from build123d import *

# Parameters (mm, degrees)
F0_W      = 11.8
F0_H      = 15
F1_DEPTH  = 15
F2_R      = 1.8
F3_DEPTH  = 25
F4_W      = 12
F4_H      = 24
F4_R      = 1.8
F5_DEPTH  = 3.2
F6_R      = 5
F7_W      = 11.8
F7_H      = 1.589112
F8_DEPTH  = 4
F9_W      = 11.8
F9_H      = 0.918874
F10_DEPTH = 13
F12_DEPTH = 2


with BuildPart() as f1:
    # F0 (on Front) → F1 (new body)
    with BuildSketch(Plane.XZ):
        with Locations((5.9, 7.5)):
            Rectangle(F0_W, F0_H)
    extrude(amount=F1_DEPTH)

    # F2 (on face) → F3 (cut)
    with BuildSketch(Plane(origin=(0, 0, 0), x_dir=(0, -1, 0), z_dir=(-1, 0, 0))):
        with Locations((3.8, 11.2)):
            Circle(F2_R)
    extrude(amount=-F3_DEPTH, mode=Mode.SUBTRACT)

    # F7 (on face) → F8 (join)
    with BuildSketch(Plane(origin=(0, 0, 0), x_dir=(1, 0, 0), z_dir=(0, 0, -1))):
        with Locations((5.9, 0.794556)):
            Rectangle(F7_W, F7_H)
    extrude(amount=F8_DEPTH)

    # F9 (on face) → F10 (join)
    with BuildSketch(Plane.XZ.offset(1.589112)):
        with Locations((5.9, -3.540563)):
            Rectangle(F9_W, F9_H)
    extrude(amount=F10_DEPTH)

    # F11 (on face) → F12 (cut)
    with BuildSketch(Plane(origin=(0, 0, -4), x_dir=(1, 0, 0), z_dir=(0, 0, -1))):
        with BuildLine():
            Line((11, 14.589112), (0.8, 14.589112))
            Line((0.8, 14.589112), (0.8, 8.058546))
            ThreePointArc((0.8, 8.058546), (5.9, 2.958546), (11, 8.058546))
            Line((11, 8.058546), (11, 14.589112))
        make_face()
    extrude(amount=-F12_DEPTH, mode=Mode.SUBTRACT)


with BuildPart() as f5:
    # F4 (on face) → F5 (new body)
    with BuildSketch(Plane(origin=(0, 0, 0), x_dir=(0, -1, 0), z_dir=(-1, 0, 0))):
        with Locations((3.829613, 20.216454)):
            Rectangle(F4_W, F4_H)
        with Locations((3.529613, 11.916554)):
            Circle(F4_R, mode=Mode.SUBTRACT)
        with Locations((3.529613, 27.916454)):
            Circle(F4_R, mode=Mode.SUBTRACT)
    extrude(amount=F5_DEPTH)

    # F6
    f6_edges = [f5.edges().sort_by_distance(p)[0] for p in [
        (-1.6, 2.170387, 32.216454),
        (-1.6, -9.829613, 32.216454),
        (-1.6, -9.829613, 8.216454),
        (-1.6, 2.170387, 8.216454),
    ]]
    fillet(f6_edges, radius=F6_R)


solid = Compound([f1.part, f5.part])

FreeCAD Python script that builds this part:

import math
import FreeCAD as App
import Part
import Sketcher
Q = App.Units.Quantity


def edges_at(feature, points):
    """Names of the edges that pass closest to the given points."""
    edges = feature.Shape.Edges
    near = lambda p: min(range(len(edges)), key=lambda i: edges[i].distToShape(Part.Vertex(*p))[0])
    return sorted({f"Edge{near(p) + 1}" for p in points})


def add_polygon(sketch, points):
    """Adds a closed chain of lines whose ends are joined by coincident constraints."""
    first, n = sketch.GeometryCount, len(points)
    for a, b in zip(points, points[1:] + points[:1]):
        sketch.addGeometry(Part.LineSegment(App.Vector(*a, 0), App.Vector(*b, 0)), False)
    for i in range(n):
        sketch.addConstraint(Sketcher.Constraint("Coincident", first + i, 2, first + (i + 1) % n, 1))

doc = App.newDocument("Part")
params = doc.addObject("Spreadsheet::Sheet", "Params")
for row, (alias, value) in enumerate([
    ("sketch1_height", "15 mm"),
    ("sketch1_width", "11.8 mm"),
    ("pad1_length", "15 mm"),
    ("sketch2_diameter", "3.6 mm"),
    ("pocket1_length", "25 mm"),
    ("sketch3_width", "11.8 mm"),
    ("pad2_length", "4 mm"),
    ("sketch4_width", "11.8 mm"),
    ("pad3_length", "13 mm"),
    ("sketch5_radius", "5.1 mm"),
    ("pocket2_length", "2 mm"),
    ("sketch6_diameter", "3.6 mm"),
    ("sketch6_width", "12 mm"),
    ("sketch6_height", "24 mm"),
    ("pad4_length", "3.2 mm"),
    ("fillet_radius", "5 mm"),
], start=1):
    params.set(f"A{row}", alias)
    params.set(f"B{row}", "=" + value)
    params.setAlias(f"B{row}", alias)

body = doc.addObject("PartDesign::Body", "Body")

# Sketch on XZ plane
sketch1 = body.newObject("Sketcher::SketchObject", "Sketch")
sketch1.AttachmentSupport = (doc.getObject("XZ_Plane"), [""])
sketch1.MapMode = "FlatFace"
add_polygon(sketch1, [(0, 15), (0, 0), (12, 0), (12, 15)])  # lines 0-3
sketch1.addConstraint(Sketcher.Constraint("Vertical", 0))
sketch1.addConstraint(Sketcher.Constraint("Horizontal", 1))
sketch1.addConstraint(Sketcher.Constraint("Vertical", 2))
sketch1.addConstraint(Sketcher.Constraint("Horizontal", 3))
sketch1.addConstraint(Sketcher.Constraint("Coincident", 0, 2, -1, 1))
sketch1.addConstraint(Sketcher.Constraint("DistanceY", 0, 2, 0, 1, Q("15 mm")))
sketch1.addConstraint(Sketcher.Constraint("DistanceX", 1, 1, 1, 2, Q("11.8 mm")))
sketch1.setExpression("Constraints[9]", "Params.sketch1_height")
sketch1.setExpression("Constraints[10]", "Params.sketch1_width")
pad1 = body.newObject("PartDesign::Pad", "Pad")
pad1.Profile = sketch1
pad1.setExpression("Length", "Params.pad1_length")

# Sketch on YZ plane
sketch2 = body.newObject("Sketcher::SketchObject", "Sketch001")
sketch2.AttachmentSupport = (doc.getObject("YZ_Plane"), [""])
sketch2.MapMode = "FlatFace"
sketch2.addGeometry(Part.Circle(App.Vector(-3.8, 11.2, 0), App.Vector(0, 0, 1), 1.8), False)
sketch2.addConstraint(Sketcher.Constraint("Diameter", 0, Q("3.6 mm")))
sketch2.addConstraint(Sketcher.Constraint("DistanceX", 0, 3, -1, 1, Q("3.8 mm")))
sketch2.addConstraint(Sketcher.Constraint("DistanceY", -1, 1, 0, 3, Q("11.2 mm")))
sketch2.setExpression("Constraints[0]", "Params.sketch2_diameter")
pocket1 = body.newObject("PartDesign::Pocket", "Pocket")
pocket1.Profile = sketch2
pocket1.setExpression("Length", "Params.pocket1_length")
pocket1.Reversed = True

# Sketch on XY plane
sketch3 = body.newObject("Sketcher::SketchObject", "Sketch002")
sketch3.AttachmentSupport = (doc.getObject("XY_Plane"), [""])
sketch3.MapMode = "FlatFace"
add_polygon(sketch3, [(0, -1.6), (0, 0), (11.8, 0), (11.8, -1.6)])  # lines 0-3
sketch3.addConstraint(Sketcher.Constraint("Vertical", 0))
sketch3.addConstraint(Sketcher.Constraint("Horizontal", 1))
sketch3.addConstraint(Sketcher.Constraint("Vertical", 2))
sketch3.addConstraint(Sketcher.Constraint("Horizontal", 3))
sketch3.addConstraint(Sketcher.Constraint("Coincident", 0, 2, -1, 1))
sketch3.addConstraint(Sketcher.Constraint("DistanceX", 1, 1, 1, 2, Q("11.8 mm")))
sketch3.addConstraint(Sketcher.Constraint("DistanceY", 0, 1, 0, 2, Q("1.589112 mm")))
sketch3.setExpression("Constraints[9]", "Params.sketch3_width")
pad2 = body.newObject("PartDesign::Pad", "Pad001")
pad2.Profile = sketch3
pad2.setExpression("Length", "Params.pad2_length")
pad2.Reversed = True

# Sketch on XZ plane
sketch4 = body.newObject("Sketcher::SketchObject", "Sketch003")
sketch4.AttachmentSupport = (doc.getObject("XZ_Plane"), [""])
sketch4.MapMode = "FlatFace"
sketch4.AttachmentOffset = App.Placement(App.Vector(0, 0, 1.589112), App.Rotation())
add_polygon(sketch4, [(0, -3.1), (0, -4), (11.8, -4), (11.8, -3.1)])  # lines 0-3
sketch4.addConstraint(Sketcher.Constraint("Vertical", 0))
sketch4.addConstraint(Sketcher.Constraint("Horizontal", 1))
sketch4.addConstraint(Sketcher.Constraint("Vertical", 2))
sketch4.addConstraint(Sketcher.Constraint("Horizontal", 3))
sketch4.addConstraint(Sketcher.Constraint("PointOnObject", 0, 2, -2))
sketch4.addConstraint(Sketcher.Constraint("DistanceX", 1, 1, 1, 2, Q("11.8 mm")))
sketch4.addConstraint(Sketcher.Constraint("DistanceY", 0, 2, -1, 1, Q("4 mm")))
sketch4.addConstraint(Sketcher.Constraint("DistanceY", 0, 2, 0, 1, Q("0.918874 mm")))
sketch4.setExpression("Constraints[9]", "Params.sketch4_width")
pad3 = body.newObject("PartDesign::Pad", "Pad002")
pad3.Profile = sketch4
pad3.setExpression("Length", "Params.pad3_length")

# Sketch on XY plane
sketch5 = body.newObject("Sketcher::SketchObject", "Sketch004")
sketch5.AttachmentSupport = (doc.getObject("XY_Plane"), [""])
sketch5.MapMode = "FlatFace"
sketch5.AttachmentOffset = App.Placement(App.Vector(0, 0, -4), App.Rotation())
sketch5.addGeometry(Part.LineSegment(App.Vector(11, -15, 0), App.Vector(1, -15, 0)), False)
sketch5.addGeometry(Part.LineSegment(App.Vector(1, -15, 0), App.Vector(1, -8, 0)), False)
sketch5.addGeometry(Part.ArcOfCircle(Part.Circle(App.Vector(6, -8, 0), App.Vector(0, 0, 1), 5), math.radians(0), math.radians(180)), False)
sketch5.addGeometry(Part.LineSegment(App.Vector(11, -8, 0), App.Vector(11, -15, 0)), False)
sketch5.addConstraint(Sketcher.Constraint("Coincident", 0, 2, 1, 1))
sketch5.addConstraint(Sketcher.Constraint("Tangent", 1, 2, 2, 2))
sketch5.addConstraint(Sketcher.Constraint("Tangent", 2, 1, 3, 1))
sketch5.addConstraint(Sketcher.Constraint("Coincident", 3, 2, 0, 1))
sketch5.addConstraint(Sketcher.Constraint("Horizontal", 0))
sketch5.addConstraint(Sketcher.Constraint("Vertical", 1))
sketch5.addConstraint(Sketcher.Constraint("Vertical", 3))
sketch5.addConstraint(Sketcher.Constraint("Radius", 2, Q("5.1 mm")))
sketch5.addConstraint(Sketcher.Constraint("DistanceX", -1, 1, 2, 1, Q("11 mm")))
sketch5.addConstraint(Sketcher.Constraint("DistanceY", 1, 1, 1, 2, Q("6.530566 mm")))
sketch5.addConstraint(Sketcher.Constraint("DistanceY", 2, 3, -1, 1, Q("8.058546 mm")))
sketch5.setExpression("Constraints[7]", "Params.sketch5_radius")
pocket2 = body.newObject("PartDesign::Pocket", "Pocket001")
pocket2.Profile = sketch5
pocket2.setExpression("Length", "Params.pocket2_length")
pocket2.Reversed = True
body2 = doc.addObject("PartDesign::Body", "Body001")

# Sketch on YZ plane
sketch6 = body2.newObject("Sketcher::SketchObject", "Sketch005")
sketch6.AttachmentSupport = (doc.getObject("YZ_Plane001"), [""])
sketch6.MapMode = "FlatFace"
add_polygon(sketch6, [(2.2, 32.2), (2.2, 8.2), (-9.8, 8.2), (-9.8, 32.2)])  # lines 0-3
sketch6.addGeometry(Part.Circle(App.Vector(-3.5, 11.9, 0), App.Vector(0, 0, 1), 1.8), False)  # 4
sketch6.addGeometry(Part.Circle(App.Vector(-3.5, 27.9, 0), App.Vector(0, 0, 1), 1.8), False)  # 5
sketch6.addConstraint(Sketcher.Constraint("Vertical", 0))
sketch6.addConstraint(Sketcher.Constraint("Horizontal", 1))
sketch6.addConstraint(Sketcher.Constraint("Vertical", 2))
sketch6.addConstraint(Sketcher.Constraint("Horizontal", 3))
sketch6.addConstraint(Sketcher.Constraint("Equal", 4, 5))
sketch6.addConstraint(Sketcher.Constraint("Vertical", 4, 3, 5, 3))
sketch6.addConstraint(Sketcher.Constraint("Diameter", 4, Q("3.6 mm")))
sketch6.addConstraint(Sketcher.Constraint("DistanceX", 1, 2, 1, 1, Q("12 mm")))
sketch6.addConstraint(Sketcher.Constraint("DistanceY", 0, 2, 0, 1, Q("24 mm")))
sketch6.addConstraint(Sketcher.Constraint("DistanceX", 4, 3, 0, 2, Q("5.7 mm")))
sketch6.addConstraint(Sketcher.Constraint("DistanceY", 0, 2, 5, 3, Q("19.7 mm")))
sketch6.addConstraint(Sketcher.Constraint("DistanceY", 4, 3, 5, 3, Q("15.9999 mm")))
sketch6.addConstraint(Sketcher.Constraint("DistanceX", 4, 3, -1, 1, Q("3.529613 mm")))
sketch6.addConstraint(Sketcher.Constraint("DistanceY", -1, 1, 4, 3, Q("11.916554 mm")))
sketch6.setExpression("Constraints[10]", "Params.sketch6_diameter")
sketch6.setExpression("Constraints[11]", "Params.sketch6_width")
sketch6.setExpression("Constraints[12]", "Params.sketch6_height")
pad4 = body2.newObject("PartDesign::Pad", "Pad003")
pad4.Profile = sketch6
pad4.setExpression("Length", "Params.pad4_length")
pad4.Reversed = True
doc.recompute()

fillet = body2.newObject("PartDesign::Fillet", "Fillet")
fillet.Base = (pad4, edges_at(pad4, [
    (-1.6, 2.17, 32.216),
    (-1.6, -9.83, 32.216),
    (-1.6, -9.83, 8.216),
    (-1.6, 2.17, 8.216),
]))
fillet.setExpression("Radius", "Params.fillet_radius")

doc.recompute()
